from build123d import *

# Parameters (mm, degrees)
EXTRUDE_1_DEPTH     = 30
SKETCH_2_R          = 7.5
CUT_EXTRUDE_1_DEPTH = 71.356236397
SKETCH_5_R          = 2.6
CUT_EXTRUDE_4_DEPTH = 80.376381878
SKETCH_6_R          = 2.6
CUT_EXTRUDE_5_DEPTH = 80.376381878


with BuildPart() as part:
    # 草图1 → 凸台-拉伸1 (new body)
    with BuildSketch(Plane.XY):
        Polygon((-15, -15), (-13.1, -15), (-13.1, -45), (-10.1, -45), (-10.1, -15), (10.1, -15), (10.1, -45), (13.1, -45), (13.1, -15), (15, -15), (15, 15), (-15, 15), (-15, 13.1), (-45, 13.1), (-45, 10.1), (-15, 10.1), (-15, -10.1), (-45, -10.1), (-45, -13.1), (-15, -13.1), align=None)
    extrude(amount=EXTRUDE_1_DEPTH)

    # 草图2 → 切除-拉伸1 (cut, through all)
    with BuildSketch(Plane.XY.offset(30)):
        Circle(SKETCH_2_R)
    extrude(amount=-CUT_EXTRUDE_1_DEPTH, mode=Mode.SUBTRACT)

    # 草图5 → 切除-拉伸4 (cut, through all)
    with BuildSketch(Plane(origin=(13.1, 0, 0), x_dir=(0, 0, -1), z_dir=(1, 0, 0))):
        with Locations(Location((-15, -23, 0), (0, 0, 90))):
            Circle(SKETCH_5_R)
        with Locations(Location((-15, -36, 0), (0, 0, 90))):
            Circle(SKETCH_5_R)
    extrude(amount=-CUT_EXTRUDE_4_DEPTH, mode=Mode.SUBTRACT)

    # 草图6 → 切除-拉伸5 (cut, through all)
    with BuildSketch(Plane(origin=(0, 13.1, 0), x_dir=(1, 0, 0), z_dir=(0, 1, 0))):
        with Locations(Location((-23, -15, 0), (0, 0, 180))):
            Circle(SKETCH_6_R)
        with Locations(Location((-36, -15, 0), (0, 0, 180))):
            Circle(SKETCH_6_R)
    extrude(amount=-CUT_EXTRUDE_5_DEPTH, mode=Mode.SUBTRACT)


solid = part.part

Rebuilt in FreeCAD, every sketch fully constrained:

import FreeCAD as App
import Part
import Sketcher
from FreeCAD import Vector


def add_polygon(sketch, points):
    """Adds a closed chain of lines whose ends are joined by coincident constraints."""
    first, n = sketch.GeometryCount, len(points)
    for a, b in zip(points, points[1:] + points[:1]):
        sketch.addGeometry(Part.LineSegment(App.Vector(*a, 0), App.Vector(*b, 0)), False)
    for i in range(n):
        sketch.addConstraint(Sketcher.Constraint("Coincident", first + i, 2, first + (i + 1) % n, 1))

doc = App.newDocument("Part")
body = doc.addObject("PartDesign::Body", "Body")

sketch1 = body.newObject("Sketcher::SketchObject", "Sketch")
sketch1.AttachmentSupport = (doc.getObject("XY_Plane"), [""])
sketch1.MapMode = "FlatFace"
add_polygon(sketch1, [(-15, -15), (-13.1, -15), (-13.1, -45), (-10.1, -45), (-10.1, -15), (10.1, -15), (10.1, -45), (13.1, -45), (13.1, -15), (15, -15), (15, 15), (-15, 15), (-15, 13.1), (-45, 13.1), (-45, 10.1), (-15, 10.1), (-15, -10.1), (-45, -10.1), (-45, -13.1), (-15, -13.1)])
sketch1.addConstraint(Sketcher.Constraint("Horizontal", 0))
sketch1.addConstraint(Sketcher.Constraint("Vertical", 1))
sketch1.addConstraint(Sketcher.Constraint("Horizontal", 2))
sketch1.addConstraint(Sketcher.Constraint("Vertical", 3))
sketch1.addConstraint(Sketcher.Constraint("Horizontal", 4))
sketch1.addConstraint(Sketcher.Constraint("Vertical", 5))
sketch1.addConstraint(Sketcher.Constraint("Horizontal", 6))
sketch1.addConstraint(Sketcher.Constraint("Vertical", 7))
sketch1.addConstraint(Sketcher.Constraint("Horizontal", 8))
sketch1.addConstraint(Sketcher.Constraint("Vertical", 9))
sketch1.addConstraint(Sketcher.Constraint("Horizontal", 10))
sketch1.addConstraint(Sketcher.Constraint("Vertical", 11))
sketch1.addConstraint(Sketcher.Constraint("Horizontal", 12))
sketch1.addConstraint(Sketcher.Constraint("Vertical", 13))
sketch1.addConstraint(Sketcher.Constraint("Horizontal", 14))
sketch1.addConstraint(Sketcher.Constraint("Vertical", 15))
sketch1.addConstraint(Sketcher.Constraint("Horizontal", 16))
sketch1.addConstraint(Sketcher.Constraint("Vertical", 17))
sketch1.addConstraint(Sketcher.Constraint("Horizontal", 18))
sketch1.addConstraint(Sketcher.Constraint("Vertical", 19))
sketch1.addConstraint(Sketcher.Constraint("Symmetric", 8, 2, 10, 2, -1, 1))
sketch1.addConstraint(Sketcher.Constraint("Symmetric", 9, 2, 19, 2, -1, 1))
sketch1.addConstraint(Sketcher.Constraint("Symmetric", 2, 2, 5, 2, -2))
sketch1.addConstraint(Sketcher.Constraint("Symmetric", 13, 2, 16, 2, -1))
sketch1.addConstraint(Sketcher.Constraint("Horizontal", 0, 2, 3, 2))
sketch1.addConstraint(Sketcher.Constraint("Vertical", 11, 2, 14, 2))
sketch1.addConstraint(Sketcher.Constraint("Equal", 2, 6))
sketch1.addConstraint(Sketcher.Constraint("Equal", 10, 12))
sketch1.addConstraint(Sketcher.Constraint("Equal", 18, 1))
sketch1.addConstraint(Sketcher.Constraint("Equal", 7, 9))
sketch1.addConstraint(Sketcher.Constraint("Equal", 8, 11))
sketch1.addConstraint(Sketcher.Constraint("Equal", 6, 13))
sketch1.addConstraint(Sketcher.Constraint("Equal", 13, 17))
sketch1.addConstraint(Sketcher.Constraint("DistanceX", 2, 1, 2, 2, 3.0))
sketch1.addConstraint(Sketcher.Constraint("DistanceX", 10, 2, 10, 1, 30.0))
sketch1.addConstraint(Sketcher.Constraint("DistanceX", 0, 1, 0, 2, 1.9))
pad1 = body.newObject("PartDesign::Pad", "Pad")
pad1.Profile = sketch1
pad1.Length = 30

sketch2 = body.newObject("Sketcher::SketchObject", "Sketch001")
sketch2.AttachmentSupport = (doc.getObject("XY_Plane"), [""])
sketch2.MapMode = "FlatFace"
sketch2.AttachmentOffset = App.Placement(Vector(0, 0, 30), App.Rotation())
sketch2.addGeometry(Part.Circle(Vector(0, 0, 0), Vector(0, 0, 1), 8), False)
sketch2.addConstraint(Sketcher.Constraint("Coincident", 0, 3, -1, 1))
sketch2.addConstraint(Sketcher.Constraint("Diameter", 0, 15.0))
pocket1 = body.newObject("PartDesign::Pocket", "Pocket")
pocket1.Profile = sketch2
pocket1.Type = "ThroughAll"

sketch3 = body.newObject("Sketcher::SketchObject", "Sketch002")
sketch3.AttachmentSupport = (doc.getObject("YZ_Plane"), [""])
sketch3.MapMode = "FlatFace"
sketch3.AttachmentOffset = App.Placement(Vector(0, 0, 13.1), App.Rotation())
sketch3.addGeometry(Part.Circle(Vector(-23, 15, 0), Vector(0, 0, 1), 2.6), False)
sketch3.addGeometry(Part.Circle(Vector(-36, 15, 0), Vector(0, 0, 1), 2.6), False)
sketch3.addConstraint(Sketcher.Constraint("Equal", 0, 1))
sketch3.addConstraint(Sketcher.Constraint("Horizontal", 0, 3, 1, 3))
sketch3.addConstraint(Sketcher.Constraint("Diameter", 0, 5.2))
sketch3.addConstraint(Sketcher.Constraint("DistanceX", 0, 3, -1, 1, 23.0))
sketch3.addConstraint(Sketcher.Constraint("DistanceY", -1, 1, 0, 3, 15.0))
sketch3.addConstraint(Sketcher.Constraint("DistanceX", 1, 3, -1, 1, 36.0))
pocket2 = body.newObject("PartDesign::Pocket", "Pocket001")
pocket2.Profile = sketch3
pocket2.Type = "ThroughAll"

sketch4 = body.newObject("Sketcher::SketchObject", "Sketch003")
sketch4.AttachmentSupport = (doc.getObject("XZ_Plane"), [""])
sketch4.MapMode = "FlatFace"
sketch4.AttachmentOffset = App.Placement(Vector(0, 0, -13.1), App.Rotation())
sketch4.addGeometry(Part.Circle(Vector(-23, 15, 0), Vector(0, 0, 1), 2.6), False)
sketch4.addGeometry(Part.Circle(Vector(-36, 15, 0), Vector(0, 0, 1), 2.6), False)
sketch4.addConstraint(Sketcher.Constraint("Equal", 0, 1))
sketch4.addConstraint(Sketcher.Constraint("Horizontal", 0, 3, 1, 3))
sketch4.addConstraint(Sketcher.Constraint("Diameter", 0, 5.2))
sketch4.addConstraint(Sketcher.Constraint("DistanceX", 0, 3, -1, 1, 23.0))
sketch4.addConstraint(Sketcher.Constraint("DistanceY", -1, 1, 0, 3, 15.0))
sketch4.addConstraint(Sketcher.Constraint("DistanceX", 1, 3, -1, 1, 36.0))
pocket3 = body.newObject("PartDesign::Pocket", "Pocket002")
pocket3.Profile = sketch4
pocket3.Type = "ThroughAll"
pocket3.Reversed = True

doc.recompute()
